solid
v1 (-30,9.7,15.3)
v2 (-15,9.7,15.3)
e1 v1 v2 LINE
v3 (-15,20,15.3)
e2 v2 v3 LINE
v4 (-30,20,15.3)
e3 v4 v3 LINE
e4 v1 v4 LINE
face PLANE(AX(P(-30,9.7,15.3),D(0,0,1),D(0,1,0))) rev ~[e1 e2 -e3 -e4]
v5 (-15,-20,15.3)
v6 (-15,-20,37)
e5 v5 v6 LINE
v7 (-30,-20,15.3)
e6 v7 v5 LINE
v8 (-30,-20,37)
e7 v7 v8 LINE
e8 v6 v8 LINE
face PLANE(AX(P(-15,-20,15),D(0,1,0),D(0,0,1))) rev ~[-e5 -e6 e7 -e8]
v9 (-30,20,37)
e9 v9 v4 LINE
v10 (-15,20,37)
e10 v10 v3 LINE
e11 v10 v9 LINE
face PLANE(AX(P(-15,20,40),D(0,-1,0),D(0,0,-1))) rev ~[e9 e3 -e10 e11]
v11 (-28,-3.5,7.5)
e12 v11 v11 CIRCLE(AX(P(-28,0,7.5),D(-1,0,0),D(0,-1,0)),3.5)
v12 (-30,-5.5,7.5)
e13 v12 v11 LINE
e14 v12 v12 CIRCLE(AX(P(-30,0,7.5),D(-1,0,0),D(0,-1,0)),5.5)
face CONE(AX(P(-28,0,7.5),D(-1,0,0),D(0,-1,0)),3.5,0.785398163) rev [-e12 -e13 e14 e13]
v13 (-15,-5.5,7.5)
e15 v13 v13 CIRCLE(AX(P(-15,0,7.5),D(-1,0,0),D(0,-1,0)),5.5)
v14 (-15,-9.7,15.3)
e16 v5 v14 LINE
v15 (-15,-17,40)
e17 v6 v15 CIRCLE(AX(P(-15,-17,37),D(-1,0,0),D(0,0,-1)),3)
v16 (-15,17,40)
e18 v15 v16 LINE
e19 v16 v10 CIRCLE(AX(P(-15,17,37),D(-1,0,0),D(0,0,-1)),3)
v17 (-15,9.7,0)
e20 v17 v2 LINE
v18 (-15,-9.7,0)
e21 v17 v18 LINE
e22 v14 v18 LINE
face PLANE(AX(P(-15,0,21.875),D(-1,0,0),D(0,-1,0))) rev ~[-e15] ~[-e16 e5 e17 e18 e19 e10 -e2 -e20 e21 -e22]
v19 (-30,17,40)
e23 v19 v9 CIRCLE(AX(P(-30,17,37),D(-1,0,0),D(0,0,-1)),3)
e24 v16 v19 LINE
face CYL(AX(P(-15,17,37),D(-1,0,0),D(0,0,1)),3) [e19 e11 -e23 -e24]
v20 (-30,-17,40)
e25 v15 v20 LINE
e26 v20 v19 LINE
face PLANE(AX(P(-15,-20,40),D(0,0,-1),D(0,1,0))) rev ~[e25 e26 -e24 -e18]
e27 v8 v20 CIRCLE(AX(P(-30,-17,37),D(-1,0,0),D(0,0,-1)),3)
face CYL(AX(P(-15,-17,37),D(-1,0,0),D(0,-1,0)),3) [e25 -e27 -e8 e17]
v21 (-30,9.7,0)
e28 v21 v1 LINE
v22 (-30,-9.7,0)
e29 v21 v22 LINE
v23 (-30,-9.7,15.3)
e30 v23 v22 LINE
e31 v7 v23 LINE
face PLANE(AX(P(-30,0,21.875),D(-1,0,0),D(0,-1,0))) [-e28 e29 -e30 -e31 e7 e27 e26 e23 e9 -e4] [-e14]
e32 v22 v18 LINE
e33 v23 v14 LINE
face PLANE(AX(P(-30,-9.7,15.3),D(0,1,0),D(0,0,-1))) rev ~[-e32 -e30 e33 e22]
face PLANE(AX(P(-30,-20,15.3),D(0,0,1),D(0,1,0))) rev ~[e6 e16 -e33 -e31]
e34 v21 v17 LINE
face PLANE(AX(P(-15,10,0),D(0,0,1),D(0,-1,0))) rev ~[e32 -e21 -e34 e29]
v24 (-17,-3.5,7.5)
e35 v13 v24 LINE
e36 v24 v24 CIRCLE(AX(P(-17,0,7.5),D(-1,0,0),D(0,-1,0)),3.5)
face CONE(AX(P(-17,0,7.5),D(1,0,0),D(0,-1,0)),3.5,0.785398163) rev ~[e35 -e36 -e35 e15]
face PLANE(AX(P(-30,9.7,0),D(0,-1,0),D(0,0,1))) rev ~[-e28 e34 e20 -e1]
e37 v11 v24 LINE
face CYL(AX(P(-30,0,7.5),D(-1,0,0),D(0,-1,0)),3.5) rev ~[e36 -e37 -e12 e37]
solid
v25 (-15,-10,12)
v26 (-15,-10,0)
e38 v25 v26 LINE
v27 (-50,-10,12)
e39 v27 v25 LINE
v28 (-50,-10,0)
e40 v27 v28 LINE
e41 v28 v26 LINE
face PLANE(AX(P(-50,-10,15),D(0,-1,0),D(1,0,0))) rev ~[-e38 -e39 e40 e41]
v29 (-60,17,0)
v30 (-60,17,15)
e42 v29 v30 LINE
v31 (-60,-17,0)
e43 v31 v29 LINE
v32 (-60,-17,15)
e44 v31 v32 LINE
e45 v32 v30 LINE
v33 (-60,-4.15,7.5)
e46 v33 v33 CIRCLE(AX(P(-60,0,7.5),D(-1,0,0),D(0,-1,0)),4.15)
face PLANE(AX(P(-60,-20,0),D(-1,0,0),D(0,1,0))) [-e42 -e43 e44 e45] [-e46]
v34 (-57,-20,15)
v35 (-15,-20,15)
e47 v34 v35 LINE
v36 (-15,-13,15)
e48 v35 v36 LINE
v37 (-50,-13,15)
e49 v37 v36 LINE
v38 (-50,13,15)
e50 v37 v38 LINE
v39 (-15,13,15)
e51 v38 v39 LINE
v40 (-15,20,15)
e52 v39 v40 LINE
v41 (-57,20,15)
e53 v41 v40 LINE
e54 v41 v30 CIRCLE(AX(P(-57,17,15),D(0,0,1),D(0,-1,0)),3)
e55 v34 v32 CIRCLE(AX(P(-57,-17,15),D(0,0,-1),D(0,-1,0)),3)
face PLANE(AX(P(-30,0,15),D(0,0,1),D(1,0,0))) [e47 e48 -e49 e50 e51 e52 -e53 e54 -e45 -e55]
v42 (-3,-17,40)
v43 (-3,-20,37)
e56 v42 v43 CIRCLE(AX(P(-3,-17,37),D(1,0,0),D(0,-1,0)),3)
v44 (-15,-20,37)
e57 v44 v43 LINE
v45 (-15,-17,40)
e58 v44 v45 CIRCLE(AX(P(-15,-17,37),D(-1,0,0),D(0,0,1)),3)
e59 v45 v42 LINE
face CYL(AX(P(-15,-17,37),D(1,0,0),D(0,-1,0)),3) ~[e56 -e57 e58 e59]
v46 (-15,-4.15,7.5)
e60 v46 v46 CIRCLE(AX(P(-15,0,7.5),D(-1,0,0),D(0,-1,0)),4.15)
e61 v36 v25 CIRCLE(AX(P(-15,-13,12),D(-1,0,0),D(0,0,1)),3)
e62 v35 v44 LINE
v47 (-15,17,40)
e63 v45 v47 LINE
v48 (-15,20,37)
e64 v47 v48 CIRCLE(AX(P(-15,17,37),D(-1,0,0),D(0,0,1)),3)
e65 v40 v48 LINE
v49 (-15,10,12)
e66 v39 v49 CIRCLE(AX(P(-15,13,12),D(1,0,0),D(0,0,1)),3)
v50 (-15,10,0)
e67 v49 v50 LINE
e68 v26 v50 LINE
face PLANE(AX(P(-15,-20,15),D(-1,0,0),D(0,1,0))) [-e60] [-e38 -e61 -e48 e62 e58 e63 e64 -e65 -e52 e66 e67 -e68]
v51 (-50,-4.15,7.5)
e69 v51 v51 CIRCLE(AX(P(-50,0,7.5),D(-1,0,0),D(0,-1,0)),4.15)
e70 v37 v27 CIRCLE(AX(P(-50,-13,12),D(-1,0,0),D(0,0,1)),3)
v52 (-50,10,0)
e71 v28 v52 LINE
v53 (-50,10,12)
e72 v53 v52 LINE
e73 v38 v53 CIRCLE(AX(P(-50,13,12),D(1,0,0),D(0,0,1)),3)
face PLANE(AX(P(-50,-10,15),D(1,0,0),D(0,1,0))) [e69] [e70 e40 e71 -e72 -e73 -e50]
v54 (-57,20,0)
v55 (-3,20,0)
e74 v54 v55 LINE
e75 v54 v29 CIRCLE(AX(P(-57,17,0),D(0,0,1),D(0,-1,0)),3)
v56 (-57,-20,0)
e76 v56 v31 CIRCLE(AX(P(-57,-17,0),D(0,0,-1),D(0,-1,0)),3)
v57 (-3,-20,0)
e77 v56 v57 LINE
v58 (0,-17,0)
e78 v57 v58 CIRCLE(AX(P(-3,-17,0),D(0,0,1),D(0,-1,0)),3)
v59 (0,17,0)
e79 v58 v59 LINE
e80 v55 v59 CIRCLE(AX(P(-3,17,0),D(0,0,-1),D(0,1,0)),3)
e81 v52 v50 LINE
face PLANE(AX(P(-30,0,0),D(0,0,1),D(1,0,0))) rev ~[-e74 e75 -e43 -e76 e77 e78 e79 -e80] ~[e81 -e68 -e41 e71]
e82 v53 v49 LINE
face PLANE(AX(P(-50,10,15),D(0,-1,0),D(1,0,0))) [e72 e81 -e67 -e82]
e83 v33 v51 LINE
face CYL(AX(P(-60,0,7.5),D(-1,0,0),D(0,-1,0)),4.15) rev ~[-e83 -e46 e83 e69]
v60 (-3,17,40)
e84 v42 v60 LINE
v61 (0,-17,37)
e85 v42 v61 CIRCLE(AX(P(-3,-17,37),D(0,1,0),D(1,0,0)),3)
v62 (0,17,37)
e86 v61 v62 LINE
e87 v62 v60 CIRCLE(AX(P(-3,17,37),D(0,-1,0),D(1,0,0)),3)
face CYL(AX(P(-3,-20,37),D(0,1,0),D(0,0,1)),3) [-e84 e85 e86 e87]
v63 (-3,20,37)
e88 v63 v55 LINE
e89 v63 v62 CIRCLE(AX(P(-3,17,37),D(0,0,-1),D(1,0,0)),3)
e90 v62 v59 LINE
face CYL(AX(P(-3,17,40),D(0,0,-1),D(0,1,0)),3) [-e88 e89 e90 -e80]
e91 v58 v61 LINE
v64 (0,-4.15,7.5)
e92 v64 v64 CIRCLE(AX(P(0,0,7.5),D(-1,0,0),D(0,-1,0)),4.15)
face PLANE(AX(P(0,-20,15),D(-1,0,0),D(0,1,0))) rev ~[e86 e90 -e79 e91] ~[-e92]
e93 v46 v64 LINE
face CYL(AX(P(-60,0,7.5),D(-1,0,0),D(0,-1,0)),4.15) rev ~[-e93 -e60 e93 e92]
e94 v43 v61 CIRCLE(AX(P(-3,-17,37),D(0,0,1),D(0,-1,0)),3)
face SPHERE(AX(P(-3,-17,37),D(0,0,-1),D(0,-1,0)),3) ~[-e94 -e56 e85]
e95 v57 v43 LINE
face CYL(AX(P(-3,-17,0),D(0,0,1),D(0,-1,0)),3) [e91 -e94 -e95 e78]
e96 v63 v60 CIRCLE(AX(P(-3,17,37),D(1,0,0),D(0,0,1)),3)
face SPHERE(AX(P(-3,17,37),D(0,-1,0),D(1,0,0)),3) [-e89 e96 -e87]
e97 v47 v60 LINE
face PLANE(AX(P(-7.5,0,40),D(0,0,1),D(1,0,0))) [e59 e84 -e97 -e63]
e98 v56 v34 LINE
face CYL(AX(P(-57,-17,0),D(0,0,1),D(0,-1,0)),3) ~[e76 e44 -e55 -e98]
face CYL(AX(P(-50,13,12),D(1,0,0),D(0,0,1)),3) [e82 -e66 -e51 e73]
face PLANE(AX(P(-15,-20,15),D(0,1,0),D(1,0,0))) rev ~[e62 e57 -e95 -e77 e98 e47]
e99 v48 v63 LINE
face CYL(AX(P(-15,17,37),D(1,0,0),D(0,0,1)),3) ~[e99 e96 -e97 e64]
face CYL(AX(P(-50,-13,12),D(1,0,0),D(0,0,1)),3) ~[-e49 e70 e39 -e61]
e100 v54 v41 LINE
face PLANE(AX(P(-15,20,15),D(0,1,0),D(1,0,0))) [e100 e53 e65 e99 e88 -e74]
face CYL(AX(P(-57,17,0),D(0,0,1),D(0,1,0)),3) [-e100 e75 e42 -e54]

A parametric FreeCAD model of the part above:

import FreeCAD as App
import Part
import Sketcher
from FreeCAD import Vector


def edges_at(feature, points):
    """Names of the edges that pass closest to the given points."""
    edges = feature.Shape.Edges
    near = lambda p: min(range(len(edges)), key=lambda i: edges[i].distToShape(Part.Vertex(*p))[0])
    return sorted({f"Edge{near(p) + 1}" for p in points})

doc = App.newDocument("Part")
body = doc.addObject("PartDesign::Body", "Body")

# Sketch on XY plane
sketch1 = body.newObject("Sketcher::SketchObject", "Sketch")
sketch1.AttachmentSupport = (doc.getObject("XY_Plane"), [""])
sketch1.MapMode = "FlatFace"
sketch1.addGeometry(Part.LineSegment(Vector(-60, 20, 0), Vector(-60, -20, 0)), False)
sketch1.addGeometry(Part.LineSegment(Vector(-60, -20, 0), Vector(0, -20, 0)), False)
sketch1.addGeometry(Part.LineSegment(Vector(0, -20, 0), Vector(0, 20, 0)), False)
sketch1.addGeometry(Part.LineSegment(Vector(0, 20, 0), Vector(-60, 20, 0)), False)
sketch1.addConstraint(Sketcher.Constraint("Coincident", 0, 2, 1, 1))
sketch1.addConstraint(Sketcher.Constraint("Coincident", 1, 2, 2, 1))
sketch1.addConstraint(Sketcher.Constraint("Coincident", 2, 2, 3, 1))
sketch1.addConstraint(Sketcher.Constraint("Coincident", 3, 2, 0, 1))
sketch1.addConstraint(Sketcher.Constraint("Vertical", 0))
sketch1.addConstraint(Sketcher.Constraint("Horizontal", 1))
sketch1.addConstraint(Sketcher.Constraint("Vertical", 2))
sketch1.addConstraint(Sketcher.Constraint("Horizontal", 3))
sketch1.addConstraint(Sketcher.Constraint("Symmetric", 1, 2, 2, 2, -1, 1))
sketch1.addConstraint(Sketcher.Constraint("DistanceX", 1, 1, 1, 2, 60.0))
sketch1.addConstraint(Sketcher.Constraint("DistanceY", 0, 2, 0, 1, 40.0))
pad1 = body.newObject("PartDesign::Pad", "Pad")
pad1.Profile = sketch1
pad1.Length = 15

# Sketch on XY plane
sketch2 = body.newObject("Sketcher::SketchObject", "Sketch001")
sketch2.AttachmentSupport = (doc.getObject("XY_Plane"), [""])
sketch2.MapMode = "FlatFace"
sketch2.AttachmentOffset = App.Placement(Vector(0, 0, 15), App.Rotation())
sketch2.addGeometry(Part.LineSegment(Vector(-15, 20, 0), Vector(-15, -20, 0)), False)
sketch2.addGeometry(Part.LineSegment(Vector(-15, -20, 0), Vector(0, -20, 0)), False)
sketch2.addGeometry(Part.LineSegment(Vector(0, -20, 0), Vector(0, 20, 0)), False)
sketch2.addGeometry(Part.LineSegment(Vector(0, 20, 0), Vector(-15, 20, 0)), False)
sketch2.addConstraint(Sketcher.Constraint("Coincident", 0, 2, 1, 1))
sketch2.addConstraint(Sketcher.Constraint("Coincident", 1, 2, 2, 1))
sketch2.addConstraint(Sketcher.Constraint("Coincident", 2, 2, 3, 1))
sketch2.addConstraint(Sketcher.Constraint("Coincident", 3, 2, 0, 1))
sketch2.addConstraint(Sketcher.Constraint("Vertical", 0))
sketch2.addConstraint(Sketcher.Constraint("Horizontal", 1))
sketch2.addConstraint(Sketcher.Constraint("Vertical", 2))
sketch2.addConstraint(Sketcher.Constraint("Horizontal", 3))
sketch2.addConstraint(Sketcher.Constraint("Symmetric", 1, 2, 2, 2, -1, 1))
sketch2.addConstraint(Sketcher.Constraint("DistanceX", 1, 1, 1, 2, 15.0))
sketch2.addConstraint(Sketcher.Constraint("DistanceY", 0, 2, 0, 1, 40.0))
pad2 = body.newObject("PartDesign::Pad", "Pad001")
pad2.Profile = sketch2
pad2.Length = 25

# Sketch on XY plane
sketch3 = body.newObject("Sketcher::SketchObject", "Sketch002")
sketch3.AttachmentSupport = (doc.getObject("XY_Plane"), [""])
sketch3.MapMode = "FlatFace"
sketch3.AttachmentOffset = App.Placement(Vector(0, 0, 15), App.Rotation())
sketch3.addGeometry(Part.LineSegment(Vector(-50, 10, 0), Vector(-50, -10, 0)), False)
sketch3.addGeometry(Part.LineSegment(Vector(-50, -10, 0), Vector(-15, -10, 0)), False)
sketch3.addGeometry(Part.LineSegment(Vector(-15, -10, 0), Vector(-15, 10, 0)), False)
sketch3.addGeometry(Part.LineSegment(Vector(-15, 10, 0), Vector(-50, 10, 0)), False)
sketch3.addConstraint(Sketcher.Constraint("Coincident", 0, 2, 1, 1))
sketch3.addConstraint(Sketcher.Constraint("Coincident", 1, 2, 2, 1))
sketch3.addConstraint(Sketcher.Constraint("Coincident", 2, 2, 3, 1))
sketch3.addConstraint(Sketcher.Constraint("Coincident", 3, 2, 0, 1))
sketch3.addConstraint(Sketcher.Constraint("Vertical", 0))
sketch3.addConstraint(Sketcher.Constraint("Horizontal", 1))
sketch3.addConstraint(Sketcher.Constraint("Vertical", 2))
sketch3.addConstraint(Sketcher.Constraint("Horizontal", 3))
sketch3.addConstraint(Sketcher.Constraint("DistanceX", 1, 1, 1, 2, 35.0))
sketch3.addConstraint(Sketcher.Constraint("DistanceY", 0, 2, 0, 1, 20.0))
sketch3.addConstraint(Sketcher.Constraint("DistanceX", 0, 2, -1, 1, 50.0))
sketch3.addConstraint(Sketcher.Constraint("DistanceY", 0, 2, -1, 1, 10.0))
pocket1 = body.newObject("PartDesign::Pocket", "Pocket")
pocket1.Profile = sketch3
pocket1.Type = "ThroughAll"

# Sketch on YZ plane
sketch4 = body.newObject("Sketcher::SketchObject", "Sketch003")
sketch4.AttachmentSupport = (doc.getObject("YZ_Plane"), [""])
sketch4.MapMode = "FlatFace"
sketch4.AttachmentOffset = App.Placement(Vector(0, 0, -60), App.Rotation())
sketch4.addGeometry(Part.Circle(Vector(0, 7.5, 0), Vector(0, 0, 1), 4.2), False)
sketch4.addConstraint(Sketcher.Constraint("PointOnObject", 0, 3, -2))
sketch4.addConstraint(Sketcher.Constraint("Diameter", 0, 8.3))
sketch4.addConstraint(Sketcher.Constraint("DistanceY", -1, 1, 0, 3, 7.5))
pocket2 = body.newObject("PartDesign::Pocket", "Pocket001")
pocket2.Profile = sketch4
pocket2.Type = "ThroughAll"
pocket2.Reversed = True
doc.recompute()

fillet = body.newObject("PartDesign::Fillet", "Fillet")
fillet.Base = (pocket2, edges_at(pocket2, [
    (0, -20, 20),
    (-7.5, -20, 40),
    (0, 0, 40),
    (0, 20, 20),
    (-7.5, 20, 40),
    (-60, -20, 7.5),
    (-60, 20, 7.5),
    (-32.5, -10, 15),
    (-32.5, 10, 15),
]))
fillet.Radius = 3
body2 = doc.addObject("PartDesign::Body", "Body001")

# Sketch on YZ plane
sketch5 = body2.newObject("Sketcher::SketchObject", "Sketch004")
sketch5.AttachmentSupport = (doc.getObject("YZ_Plane001"), [""])
sketch5.MapMode = "FlatFace"
sketch5.AttachmentOffset = App.Placement(Vector(0, 0, -15), App.Rotation())
sketch5.addGeometry(Part.LineSegment(Vector(-20, 40, 0), Vector(20, 40, 0)), False)
sketch5.addGeometry(Part.LineSegment(Vector(20, 40, 0), Vector(20, 15, 0)), False)
sketch5.addGeometry(Part.LineSegment(Vector(20, 15, 0), Vector(10, 15, 0)), False)
sketch5.addGeometry(Part.LineSegment(Vector(10, 15, 0), Vector(10, 0, 0)), False)
sketch5.addGeometry(Part.LineSegment(Vector(10, 0, 0), Vector(-10, 0, 0)), False)
sketch5.addGeometry(Part.LineSegment(Vector(-10, 0, 0), Vector(-10, 15, 0)), False)
sketch5.addGeometry(Part.LineSegment(Vector(-10, 15, 0), Vector(-20, 15, 0)), False)
sketch5.addGeometry(Part.LineSegment(Vector(-20, 15, 0), Vector(-20, 40, 0)), False)
sketch5.addConstraint(Sketcher.Constraint("Coincident", 0, 2, 1, 1))
sketch5.addConstraint(Sketcher.Constraint("Coincident", 1, 2, 2, 1))
sketch5.addConstraint(Sketcher.Constraint("Coincident", 2, 2, 3, 1))
sketch5.addConstraint(Sketcher.Constraint("Coincident", 3, 2, 4, 1))
sketch5.addConstraint(Sketcher.Constraint("Coincident", 4, 2, 5, 1))
sketch5.addConstraint(Sketcher.Constraint("Coincident", 5, 2, 6, 1))
sketch5.addConstraint(Sketcher.Constraint("Coincident", 6, 2, 7, 1))
sketch5.addConstraint(Sketcher.Constraint("Coincident", 7, 2, 0, 1))
sketch5.addConstraint(Sketcher.Constraint("Horizontal", 0))
sketch5.addConstraint(Sketcher.Constraint("Vertical", 1))
sketch5.addConstraint(Sketcher.Constraint("Horizontal", 2))
sketch5.addConstraint(Sketcher.Constraint("Vertical", 3))
sketch5.addConstraint(Sketcher.Constraint("Horizontal", 4))
sketch5.addConstraint(Sketcher.Constraint("Vertical", 5))
sketch5.addConstraint(Sketcher.Constraint("Horizontal", 6))
sketch5.addConstraint(Sketcher.Constraint("Vertical", 7))
sketch5.addConstraint(Sketcher.Constraint("Symmetric", 3, 2, 4, 2, -1, 1))
sketch5.addConstraint(Sketcher.Constraint("Symmetric", 1, 2, 6, 2, -2))
sketch5.addConstraint(Sketcher.Constraint("DistanceX", 0, 1, 0, 2, 40.0))
sketch5.addConstraint(Sketcher.Constraint("DistanceX", 2, 2, 2, 1, 10.0))
sketch5.addConstraint(Sketcher.Constraint("DistanceY", 1, 2, 1, 1, 25.0))
sketch5.addConstraint(Sketcher.Constraint("DistanceY", 3, 2, 3, 1, 15.0))
pad3 = body2.newObject("PartDesign::Pad", "Pad002")
pad3.Profile = sketch5
pad3.Length = 15
pad3.Reversed = True

# Sketch on YZ plane
sketch6 = body2.newObject("Sketcher::SketchObject", "Sketch005")
sketch6.AttachmentSupport = (doc.getObject("YZ_Plane001"), [""])
sketch6.MapMode = "FlatFace"
sketch6.AttachmentOffset = App.Placement(Vector(0, 0, -30), App.Rotation())
sketch6.addGeometry(Part.LineSegment(Vector(9.7, 15.3, 0), Vector(20, 15.3, 0)), False)
sketch6.addGeometry(Part.LineSegment(Vector(20, 15.3, 0), Vector(20, 15, 0)), False)
sketch6.addGeometry(Part.LineSegment(Vector(20, 15, 0), Vector(10, 15, 0)), False)
sketch6.addGeometry(Part.LineSegment(Vector(10, 15, 0), Vector(10, 0, 0)), False)
sketch6.addGeometry(Part.LineSegment(Vector(10, 0, 0), Vector(9.7, 0, 0)), False)
sketch6.addGeometry(Part.LineSegment(Vector(9.7, 0, 0), Vector(9.7, 15.3, 0)), False)
sketch6.addGeometry(Part.LineSegment(Vector(-9.7, 15.3, 0), Vector(-9.7, 0, 0)), False)
sketch6.addGeometry(Part.LineSegment(Vector(-9.7, 0, 0), Vector(-10, 0, 0)), False)
sketch6.addGeometry(Part.LineSegment(Vector(-10, 0, 0), Vector(-10, 15, 0)), False)
sketch6.addGeometry(Part.LineSegment(Vector(-10, 15, 0), Vector(-20, 15, 0)), False)
sketch6.addGeometry(Part.LineSegment(Vector(-20, 15, 0), Vector(-20, 15.3, 0)), False)
sketch6.addGeometry(Part.LineSegment(Vector(-20, 15.3, 0), Vector(-9.7, 15.3, 0)), False)
sketch6.addConstraint(Sketcher.Constraint("Coincident", 0, 2, 1, 1))
sketch6.addConstraint(Sketcher.Constraint("Coincident", 1, 2, 2, 1))
sketch6.addConstraint(Sketcher.Constraint("Coincident", 2, 2, 3, 1))
sketch6.addConstraint(Sketcher.Constraint("Coincident", 3, 2, 4, 1))
sketch6.addConstraint(Sketcher.Constraint("Coincident", 4, 2, 5, 1))
sketch6.addConstraint(Sketcher.Constraint("Coincident", 5, 2, 0, 1))
sketch6.addConstraint(Sketcher.Constraint("Coincident", 6, 2, 7, 1))
sketch6.addConstraint(Sketcher.Constraint("Coincident", 7, 2, 8, 1))
sketch6.addConstraint(Sketcher.Constraint("Coincident", 8, 2, 9, 1))
sketch6.addConstraint(Sketcher.Constraint("Coincident", 9, 2, 10, 1))
sketch6.addConstraint(Sketcher.Constraint("Coincident", 10, 2, 11, 1))
sketch6.addConstraint(Sketcher.Constraint("Coincident", 11, 2, 6, 1))
sketch6.addConstraint(Sketcher.Constraint("Horizontal", 0))
sketch6.addConstraint(Sketcher.Constraint("Vertical", 1))
sketch6.addConstraint(Sketcher.Constraint("Horizontal", 2))
sketch6.addConstraint(Sketcher.Constraint("Vertical", 3))
sketch6.addConstraint(Sketcher.Constraint("Horizontal", 4))
sketch6.addConstraint(Sketcher.Constraint("Vertical", 5))
sketch6.addConstraint(Sketcher.Constraint("Vertical", 6))
sketch6.addConstraint(Sketcher.Constraint("Horizontal", 7))
sketch6.addConstraint(Sketcher.Constraint("Vertical", 8))
sketch6.addConstraint(Sketcher.Constraint("Horizontal", 9))
sketch6.addConstraint(Sketcher.Constraint("Vertical", 10))
sketch6.addConstraint(Sketcher.Constraint("Horizontal", 11))
sketch6.addConstraint(Sketcher.Constraint("Symmetric", 4, 2, 6, 2, -1, 1))
sketch6.addConstraint(Sketcher.Constraint("Symmetric", 3, 2, 7, 2, -2))
sketch6.addConstraint(Sketcher.Constraint("Symmetric", 1, 2, 9, 2, -2))
sketch6.addConstraint(Sketcher.Constraint("Horizontal", 5, 2, 10, 2))
sketch6.addConstraint(Sketcher.Constraint("Equal", 7, 1))
sketch6.addConstraint(Sketcher.Constraint("DistanceX", 2, 2, 2, 1, 10.0))
sketch6.addConstraint(Sketcher.Constraint("DistanceY", 3, 2, 3, 1, 15.0))
sketch6.addConstraint(Sketcher.Constraint("DistanceX", 0, 1, 0, 2, 10.3))
sketch6.addConstraint(Sketcher.Constraint("DistanceX", -1, 1, 0, 2, 20.0))
pocket3 = body2.newObject("PartDesign::Pocket", "Pocket002")
pocket3.Profile = sketch6
pocket3.Type = "ThroughAll"
pocket3.Reversed = True

# Sketch on YZ plane
sketch7 = body2.newObject("Sketcher::SketchObject", "Sketch006")
sketch7.AttachmentSupport = (doc.getObject("YZ_Plane001"), [""])
sketch7.MapMode = "FlatFace"
sketch7.AttachmentOffset = App.Placement(Vector(0, 0, -30), App.Rotation())
sketch7.addGeometry(Part.Circle(Vector(0, 7.5, 0), Vector(0, 0, 1), 3.5), False)
sketch7.addConstraint(Sketcher.Constraint("PointOnObject", 0, 3, -2))
sketch7.addConstraint(Sketcher.Constraint("Diameter", 0, 7.0))
sketch7.addConstraint(Sketcher.Constraint("DistanceY", -1, 1, 0, 3, 7.5))
pocket4 = body2.newObject("PartDesign::Pocket", "Pocket003")
pocket4.Profile = sketch7
pocket4.Type = "ThroughAll"
pocket4.Reversed = True
doc.recompute()

chamfer = body2.newObject("PartDesign::Chamfer", "Chamfer")
chamfer.Base = (pocket4, edges_at(pocket4, [(-30, 3.5, 7.5), (-15, 3.5, 7.5)]))
chamfer.Size = 2
doc.recompute()

fillet2 = body2.newObject("PartDesign::Fillet", "Fillet001")
fillet2.Base = (chamfer, edges_at(chamfer, [(-22.5, -20, 40), (-22.5, 20, 40)]))
fillet2.Radius = 3

doc.recompute()
